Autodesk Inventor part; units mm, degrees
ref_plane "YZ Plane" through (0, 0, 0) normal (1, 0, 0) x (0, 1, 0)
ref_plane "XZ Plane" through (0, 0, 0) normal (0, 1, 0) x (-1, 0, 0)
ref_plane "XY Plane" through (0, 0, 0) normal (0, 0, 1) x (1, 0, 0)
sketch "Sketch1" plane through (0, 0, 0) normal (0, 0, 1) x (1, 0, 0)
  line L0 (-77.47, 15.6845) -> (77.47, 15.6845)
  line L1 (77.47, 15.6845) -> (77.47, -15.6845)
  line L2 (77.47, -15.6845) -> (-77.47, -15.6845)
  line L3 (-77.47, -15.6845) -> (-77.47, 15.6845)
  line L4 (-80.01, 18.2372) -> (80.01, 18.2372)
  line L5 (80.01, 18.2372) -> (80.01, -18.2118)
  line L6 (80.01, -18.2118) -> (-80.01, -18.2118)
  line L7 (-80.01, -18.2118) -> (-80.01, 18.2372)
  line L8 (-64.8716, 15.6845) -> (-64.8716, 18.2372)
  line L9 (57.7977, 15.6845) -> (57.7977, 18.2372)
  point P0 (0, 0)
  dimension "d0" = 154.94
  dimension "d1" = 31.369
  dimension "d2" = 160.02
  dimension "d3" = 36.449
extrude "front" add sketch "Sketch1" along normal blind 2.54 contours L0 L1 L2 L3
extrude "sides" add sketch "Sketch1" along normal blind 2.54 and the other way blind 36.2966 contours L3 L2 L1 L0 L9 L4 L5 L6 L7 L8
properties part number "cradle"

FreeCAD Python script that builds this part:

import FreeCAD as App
import Part
import Sketcher
Q = App.Units.Quantity


def add_polygon(sketch, points):
    """Adds a closed chain of lines whose ends are joined by coincident constraints."""
    first, n = sketch.GeometryCount, len(points)
    for a, b in zip(points, points[1:] + points[:1]):
        sketch.addGeometry(Part.LineSegment(App.Vector(*a, 0), App.Vector(*b, 0)), False)
    for i in range(n):
        sketch.addConstraint(Sketcher.Constraint("Coincident", first + i, 2, first + (i + 1) % n, 1))

doc = App.newDocument("Part")
body = doc.addObject("PartDesign::Body", "Body")

# Sketch on XY plane
sketch1 = body.newObject("Sketcher::SketchObject", "Sketch")
sketch1.AttachmentSupport = (doc.getObject("XY_Plane"), [""])
sketch1.MapMode = "FlatFace"
add_polygon(sketch1, [(77, 16), (-77, 16), (-77, -16), (77, -16)])  # lines 0-3
sketch1.addConstraint([
    Sketcher.Constraint("Horizontal", 0),
    Sketcher.Constraint("Vertical", 1),
    Sketcher.Constraint("Horizontal", 2),
    Sketcher.Constraint("Vertical", 3),
    Sketcher.Constraint("Symmetric", 0, 2, 2, 2, -1, 1),
    Sketcher.Constraint("DistanceX", 0, 2, 0, 1, Q("6.1 in")),
    Sketcher.Constraint("DistanceY", 1, 2, 1, 1, Q("1.235 in")),
])
pad1 = body.newObject("PartDesign::Pad", "Pad")
pad1.Profile = sketch1
pad1.Length = Q("0.1 in")

# Sketch on XY plane
sketch2 = body.newObject("Sketcher::SketchObject", "Sketch001")
sketch2.AttachmentSupport = (doc.getObject("XY_Plane"), [""])
sketch2.MapMode = "FlatFace"
add_polygon(sketch2, [(-77.5, -15.7), (-77.5, 15.7), (-64.9, 15.7), (-64.9, 18.2), (-80, 18.2), (-80, -18.2), (80, -18.2), (80, 18.2), (57.8, 18.2), (57.8, 15.7), (77.5, 15.7), (77.5, -15.7)])  # lines 0-11
sketch2.addConstraint([
    Sketcher.Constraint("Vertical", 0),
    Sketcher.Constraint("Horizontal", 1),
    Sketcher.Constraint("Vertical", 2),
    Sketcher.Constraint("Horizontal", 3),
    Sketcher.Constraint("Vertical", 4),
    Sketcher.Constraint("Horizontal", 5),
    Sketcher.Constraint("Vertical", 6),
    Sketcher.Constraint("Horizontal", 7),
    Sketcher.Constraint("Vertical", 8),
    Sketcher.Constraint("Horizontal", 9),
    Sketcher.Constraint("Vertical", 10),
    Sketcher.Constraint("Horizontal", 11),
    Sketcher.Constraint("Symmetric", 0, 2, 10, 2, -1, 1),
    Sketcher.Constraint("Symmetric", 3, 2, 6, 2, -2),
    Sketcher.Constraint("Horizontal", 1, 2, 8, 2),
    Sketcher.Constraint("DistanceX", 5, 1, 5, 2, Q("6.3 in")),
    Sketcher.Constraint("DistanceX", 11, 2, 11, 1, Q("6.1 in")),
    Sketcher.Constraint("DistanceY", 0, 1, 0, 2, Q("1.235 in")),
    Sketcher.Constraint("DistanceY", 4, 2, 4, 1, Q("1.435 in")),
    Sketcher.Constraint("DistanceX", 1, 1, 1, 2, Q("0.496 in")),
    Sketcher.Constraint("DistanceX", 7, 2, 7, 1, Q("0.8745 in")),
    Sketcher.Constraint("DistanceY", 2, 1, 2, 2, Q("0.1005 in")),
])
pad2 = body.newObject("PartDesign::Pad", "Pad001")
pad2.Profile = sketch2
pad2.Type = "TwoLengths"
pad2.Length = Q("0.1 in")
pad2.Length2 = Q("1.429 in")

doc.recompute()
